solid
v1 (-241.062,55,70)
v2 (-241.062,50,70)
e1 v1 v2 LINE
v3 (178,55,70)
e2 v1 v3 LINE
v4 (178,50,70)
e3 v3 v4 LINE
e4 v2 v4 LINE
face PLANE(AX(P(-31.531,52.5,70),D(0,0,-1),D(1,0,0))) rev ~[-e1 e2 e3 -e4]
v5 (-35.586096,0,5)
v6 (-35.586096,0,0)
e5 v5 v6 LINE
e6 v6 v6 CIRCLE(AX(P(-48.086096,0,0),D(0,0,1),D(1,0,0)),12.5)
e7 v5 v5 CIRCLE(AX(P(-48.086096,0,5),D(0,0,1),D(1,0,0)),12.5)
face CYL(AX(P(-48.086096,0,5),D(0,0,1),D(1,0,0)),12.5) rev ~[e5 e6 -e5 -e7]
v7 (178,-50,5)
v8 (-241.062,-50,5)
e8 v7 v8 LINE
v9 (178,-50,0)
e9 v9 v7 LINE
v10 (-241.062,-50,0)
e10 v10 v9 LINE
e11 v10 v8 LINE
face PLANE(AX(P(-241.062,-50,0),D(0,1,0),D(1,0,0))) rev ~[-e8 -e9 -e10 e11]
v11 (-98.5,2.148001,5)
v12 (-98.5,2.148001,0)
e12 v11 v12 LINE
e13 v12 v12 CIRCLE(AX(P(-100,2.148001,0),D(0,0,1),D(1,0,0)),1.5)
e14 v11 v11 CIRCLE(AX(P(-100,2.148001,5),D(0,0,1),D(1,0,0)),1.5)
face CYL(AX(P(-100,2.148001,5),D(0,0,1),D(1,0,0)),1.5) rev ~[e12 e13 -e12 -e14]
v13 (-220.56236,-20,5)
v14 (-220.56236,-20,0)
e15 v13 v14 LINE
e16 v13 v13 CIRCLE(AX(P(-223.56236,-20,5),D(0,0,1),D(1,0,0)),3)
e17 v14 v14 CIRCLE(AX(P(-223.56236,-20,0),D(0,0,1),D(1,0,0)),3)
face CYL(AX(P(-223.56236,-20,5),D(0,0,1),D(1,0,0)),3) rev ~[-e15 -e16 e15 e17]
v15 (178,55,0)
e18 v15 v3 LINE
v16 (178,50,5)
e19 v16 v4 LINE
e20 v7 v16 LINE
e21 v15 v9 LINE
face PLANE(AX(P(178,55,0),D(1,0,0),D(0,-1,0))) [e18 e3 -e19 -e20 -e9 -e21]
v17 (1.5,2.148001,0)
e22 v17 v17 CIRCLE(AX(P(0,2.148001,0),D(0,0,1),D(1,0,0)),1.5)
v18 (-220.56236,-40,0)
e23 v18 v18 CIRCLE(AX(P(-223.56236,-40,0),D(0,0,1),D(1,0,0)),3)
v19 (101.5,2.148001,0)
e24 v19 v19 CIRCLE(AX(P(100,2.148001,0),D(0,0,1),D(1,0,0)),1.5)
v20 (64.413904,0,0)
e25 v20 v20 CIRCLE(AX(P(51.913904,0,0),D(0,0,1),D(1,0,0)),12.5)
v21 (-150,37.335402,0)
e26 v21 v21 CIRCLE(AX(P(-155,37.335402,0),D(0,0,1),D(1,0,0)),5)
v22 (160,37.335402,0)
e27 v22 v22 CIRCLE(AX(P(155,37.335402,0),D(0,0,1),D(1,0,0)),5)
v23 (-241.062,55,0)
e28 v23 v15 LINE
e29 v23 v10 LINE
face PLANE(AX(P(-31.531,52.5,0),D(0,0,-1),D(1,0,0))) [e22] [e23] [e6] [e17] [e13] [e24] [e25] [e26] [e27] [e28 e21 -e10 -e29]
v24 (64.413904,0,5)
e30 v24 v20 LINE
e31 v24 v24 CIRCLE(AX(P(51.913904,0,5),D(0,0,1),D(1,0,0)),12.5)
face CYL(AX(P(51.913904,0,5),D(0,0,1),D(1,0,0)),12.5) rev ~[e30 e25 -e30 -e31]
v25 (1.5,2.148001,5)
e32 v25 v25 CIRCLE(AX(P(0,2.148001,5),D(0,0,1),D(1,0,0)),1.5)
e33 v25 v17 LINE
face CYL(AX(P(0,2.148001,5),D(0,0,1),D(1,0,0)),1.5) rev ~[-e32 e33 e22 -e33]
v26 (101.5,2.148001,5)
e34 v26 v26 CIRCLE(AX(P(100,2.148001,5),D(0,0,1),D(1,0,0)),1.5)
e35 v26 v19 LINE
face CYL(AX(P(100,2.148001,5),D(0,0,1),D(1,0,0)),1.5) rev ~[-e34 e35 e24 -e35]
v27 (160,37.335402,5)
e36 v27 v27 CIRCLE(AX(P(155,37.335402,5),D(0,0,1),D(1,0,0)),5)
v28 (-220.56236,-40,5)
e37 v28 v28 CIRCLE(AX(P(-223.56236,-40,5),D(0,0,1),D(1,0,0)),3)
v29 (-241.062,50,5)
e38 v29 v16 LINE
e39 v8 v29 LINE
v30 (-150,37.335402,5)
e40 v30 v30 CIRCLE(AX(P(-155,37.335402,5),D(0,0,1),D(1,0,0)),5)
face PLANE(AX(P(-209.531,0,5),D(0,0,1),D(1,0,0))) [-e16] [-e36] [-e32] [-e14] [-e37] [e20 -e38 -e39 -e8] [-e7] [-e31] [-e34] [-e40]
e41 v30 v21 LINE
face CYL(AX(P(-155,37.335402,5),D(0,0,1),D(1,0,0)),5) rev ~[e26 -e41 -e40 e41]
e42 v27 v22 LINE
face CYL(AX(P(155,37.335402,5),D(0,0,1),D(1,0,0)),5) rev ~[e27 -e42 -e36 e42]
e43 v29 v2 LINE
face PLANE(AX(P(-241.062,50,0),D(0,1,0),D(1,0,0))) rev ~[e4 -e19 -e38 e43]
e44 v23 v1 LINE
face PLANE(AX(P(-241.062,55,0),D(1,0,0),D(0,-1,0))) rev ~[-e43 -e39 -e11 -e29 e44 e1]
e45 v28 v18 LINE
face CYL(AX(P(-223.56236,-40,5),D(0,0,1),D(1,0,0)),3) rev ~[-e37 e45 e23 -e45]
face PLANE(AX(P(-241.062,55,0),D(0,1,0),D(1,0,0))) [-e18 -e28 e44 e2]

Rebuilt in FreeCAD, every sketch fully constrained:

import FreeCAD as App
import Part
import Sketcher

V = App.Vector
Q = App.Units.Quantity


def add_polygon(sketch, points):
    """Adds a closed chain of lines whose ends are joined by coincident constraints."""
    first, n = sketch.GeometryCount, len(points)
    for a, b in zip(points, points[1:] + points[:1]):
        sketch.addGeometry(Part.LineSegment(App.Vector(*a, 0), App.Vector(*b, 0)), False)
    for i in range(n):
        sketch.addConstraint(Sketcher.Constraint("Coincident", first + i, 2, first + (i + 1) % n, 1))

doc = App.newDocument("Part")
params = doc.addObject("Spreadsheet::Sheet", "Params")
for row, (alias, value) in enumerate([
    ("sketch1_width", "356 mm"),
    ("sketch1_height", "100 mm"),
    ("pad1_length", "5 mm"),
    ("sketch2_diameter", "10 mm"),
    ("sketch2_diameter2", "25 mm"),
    ("sketch3_diameter", "3 mm"),
    ("sketch4_height", "100 mm"),
    ("pad2_length", "5 mm"),
    ("sketch5_diameter", "6 mm"),
    ("pocket3_length", "25 mm"),
    ("sketch6_height", "5 mm"),
    ("pad3_length", "70 mm"),
    ("pad4_length", "25 mm"),
], start=1):
    params.set(f"A{row}", alias)
    params.set(f"B{row}", "=" + value)
    params.setAlias(f"B{row}", alias)

body = doc.addObject("PartDesign::Body", "Body")

# Sketch on XY plane
sketch1 = body.newObject("Sketcher::SketchObject", "Sketch")
sketch1.AttachmentSupport = (doc.getObject("XY_Plane"), [""])
sketch1.MapMode = "FlatFace"
add_polygon(sketch1, [(-178, 50), (-178, -50), (178, -50), (178, 50)])  # lines 0-3
sketch1.addConstraint([
    Sketcher.Constraint("Vertical", 0),
    Sketcher.Constraint("Horizontal", 1),
    Sketcher.Constraint("Vertical", 2),
    Sketcher.Constraint("Horizontal", 3),
    Sketcher.Constraint("Symmetric", 0, 2, 2, 2, -1, 1),
    Sketcher.Constraint("DistanceX", 1, 1, 1, 2, Q("356 mm")),
    Sketcher.Constraint("DistanceY", 0, 2, 0, 1, Q("100 mm")),
])
sketch1.setExpression("Constraints[9]", "Params.sketch1_width")
sketch1.setExpression("Constraints[10]", "Params.sketch1_height")
pad1 = body.newObject("PartDesign::Pad", "Pad")
pad1.Profile = sketch1
pad1.setExpression("Length", "Params.pad1_length")

# Sketch on XY plane
sketch2 = body.newObject("Sketcher::SketchObject", "Sketch001")
sketch2.AttachmentSupport = (doc.getObject("XY_Plane"), [""])
sketch2.MapMode = "FlatFace"
sketch2.AttachmentOffset = App.Placement(V(0, 0, 5), App.Rotation())
sketch2.addGeometry([
    Part.Circle(V(-155, 37, 0), V(0, 0, 1), 5),
    Part.Circle(V(155, 37, 0), V(0, 0, 1), 5),
    Part.Circle(V(-48, 0, 0), V(0, 0, 1), 12),
    Part.Circle(V(52, 0, 0), V(0, 0, 1), 12),
], False)
sketch2.addConstraint([
    Sketcher.Constraint("Equal", 0, 1),
    Sketcher.Constraint("Equal", 2, 3),
    Sketcher.Constraint("Symmetric", 0, 3, 1, 3, -2),
    Sketcher.Constraint("PointOnObject", 2, 3, -1),
    Sketcher.Constraint("PointOnObject", 3, 3, -1),
    Sketcher.Constraint("Diameter", 0, Q("10 mm")),
    Sketcher.Constraint("Diameter", 2, Q("25 mm")),
    Sketcher.Constraint("DistanceX", 0, 3, -1, 1, Q("155 mm")),
    Sketcher.Constraint("DistanceX", 2, 3, 3, 3, Q("100 mm")),
    Sketcher.Constraint("DistanceY", -1, 1, 0, 3, Q("37.335402 mm")),
    Sketcher.Constraint("DistanceX", 2, 3, -1, 1, Q("48.086096 mm")),
])
sketch2.setExpression("Constraints[5]", "Params.sketch2_diameter")
sketch2.setExpression("Constraints[6]", "Params.sketch2_diameter2")
pocket1 = body.newObject("PartDesign::Pocket", "Pocket")
pocket1.Profile = sketch2
pocket1.Type = "ThroughAll"

# Sketch on XY plane
sketch3 = body.newObject("Sketcher::SketchObject", "Sketch002")
sketch3.AttachmentSupport = (doc.getObject("XY_Plane"), [""])
sketch3.MapMode = "FlatFace"
sketch3.AttachmentOffset = App.Placement(V(0, 0, 5), App.Rotation())
sketch3.addGeometry([
    Part.Circle(V(0, 2.1, 0), V(0, 0, 1), 1.5),
    Part.Circle(V(100, 2.1, 0), V(0, 0, 1), 1.5),
    Part.Circle(V(-100, 2.1, 0), V(0, 0, 1), 1.5),
], False)
sketch3.addConstraint([
    Sketcher.Constraint("Equal", 0, 1),
    Sketcher.Constraint("Equal", 1, 2),
    Sketcher.Constraint("Symmetric", 1, 3, 2, 3, -2),
    Sketcher.Constraint("PointOnObject", 0, 3, -2),
    Sketcher.Constraint("Horizontal", 0, 3, 1, 3),
    Sketcher.Constraint("Diameter", 0, Q("3 mm")),
    Sketcher.Constraint("DistanceX", -1, 1, 1, 3, Q("100 mm")),
    Sketcher.Constraint("DistanceY", -1, 1, 0, 3, Q("2.148001 mm")),
])
sketch3.setExpression("Constraints[5]", "Params.sketch3_diameter")
pocket2 = body.newObject("PartDesign::Pocket", "Pocket001")
pocket2.Profile = sketch3
pocket2.Type = "ThroughAll"

# Sketch on XY plane
sketch4 = body.newObject("Sketcher::SketchObject", "Sketch003")
sketch4.AttachmentSupport = (doc.getObject("XY_Plane"), [""])
sketch4.MapMode = "FlatFace"
add_polygon(sketch4, [(-241, 50), (-241, -50), (-178, -50), (-178, 50)])  # lines 0-3
sketch4.addConstraint([
    Sketcher.Constraint("Vertical", 0),
    Sketcher.Constraint("Horizontal", 1),
    Sketcher.Constraint("Vertical", 2),
    Sketcher.Constraint("Horizontal", 3),
    Sketcher.Constraint("DistanceY", 0, 2, 0, 1, Q("100 mm")),
    Sketcher.Constraint("DistanceY", 0, 2, -1, 1, Q("50 mm")),
    Sketcher.Constraint("DistanceX", 1, 2, -1, 1, Q("178 mm")),
    Sketcher.Constraint("DistanceX", 1, 1, 1, 2, Q("63.062 mm")),
])
sketch4.setExpression("Constraints[8]", "Params.sketch4_height")
pad2 = body.newObject("PartDesign::Pad", "Pad001")
pad2.Profile = sketch4
pad2.setExpression("Length", "Params.pad2_length")

# Sketch on XY plane
sketch5 = body.newObject("Sketcher::SketchObject", "Sketch004")
sketch5.AttachmentSupport = (doc.getObject("XY_Plane"), [""])
sketch5.MapMode = "FlatFace"
sketch5.AttachmentOffset = App.Placement(V(0, 0, 5), App.Rotation())
sketch5.addGeometry([
    Part.Circle(V(-223.6, -20, 0), V(0, 0, 1), 3),
    Part.Circle(V(-223.6, -40, 0), V(0, 0, 1), 3),
], False)
sketch5.addConstraint([
    Sketcher.Constraint("Equal", 0, 1),
    Sketcher.Constraint("Vertical", 0, 3, 1, 3),
    Sketcher.Constraint("Diameter", 0, Q("6 mm")),
    Sketcher.Constraint("DistanceY", 0, 3, -1, 1, Q("20 mm")),
    Sketcher.Constraint("DistanceY", 1, 3, -1, 1, Q("40 mm")),
    Sketcher.Constraint("DistanceX", 0, 3, -1, 1, Q("223.56236 mm")),
])
sketch5.setExpression("Constraints[2]", "Params.sketch5_diameter")
pocket3 = body.newObject("PartDesign::Pocket", "Pocket002")
pocket3.Profile = sketch5
pocket3.setExpression("Length", "Params.pocket3_length")

# Sketch on XY plane
sketch6 = body.newObject("Sketcher::SketchObject", "Sketch005")
sketch6.AttachmentSupport = (doc.getObject("XY_Plane"), [""])
sketch6.MapMode = "FlatFace"
add_polygon(sketch6, [(-241, 50), (-241, 55), (178, 55), (178, 50)])  # lines 0-3
sketch6.addConstraint([
    Sketcher.Constraint("Vertical", 0),
    Sketcher.Constraint("Horizontal", 1),
    Sketcher.Constraint("Vertical", 2),
    Sketcher.Constraint("Horizontal", 3),
    Sketcher.Constraint("DistanceY", 0, 1, 0, 2, Q("5 mm")),
    Sketcher.Constraint("DistanceY", -1, 1, 0, 2, Q("55 mm")),
    Sketcher.Constraint("DistanceX", -1, 1, 1, 2, Q("178 mm")),
    Sketcher.Constraint("DistanceX", 1, 1, 1, 2, Q("419.062 mm")),
])
sketch6.setExpression("Constraints[8]", "Params.sketch6_height")
pad3 = body.newObject("PartDesign::Pad", "Pad002")
pad3.Profile = sketch6
pad3.setExpression("Length", "Params.pad3_length")
body2 = doc.addObject("PartDesign::Body", "Body001")

# Sketch on XY plane
sketch7 = body2.newObject("Sketcher::SketchObject", "Sketch006")
sketch7.AttachmentSupport = (doc.getObject("XY_Plane001"), [""])
sketch7.MapMode = "FlatFace"
add_polygon(sketch7, [(12, 59), (12, 38), (62, 38), (62, 59)])  # lines 0-3
sketch7.addConstraint([
    Sketcher.Constraint("Vertical", 0),
    Sketcher.Constraint("Horizontal", 1),
    Sketcher.Constraint("Vertical", 2),
    Sketcher.Constraint("Horizontal", 3),
    Sketcher.Constraint("DistanceX", 1, 1, 1, 2, Q("49.406879 mm")),
    Sketcher.Constraint("DistanceY", -1, 1, 0, 2, Q("37.8327 mm")),
    Sketcher.Constraint("DistanceY", 0, 2, 0, 1, Q("21.095738 mm")),
    Sketcher.Constraint("DistanceX", -1, 1, 0, 2, Q("12.32101 mm")),
])
pad4 = body2.newObject("PartDesign::Pad", "Pad003")
pad4.Profile = sketch7
pad4.setExpression("Length", "Params.pad4_length")
body2.Visibility = False

doc.recompute()
